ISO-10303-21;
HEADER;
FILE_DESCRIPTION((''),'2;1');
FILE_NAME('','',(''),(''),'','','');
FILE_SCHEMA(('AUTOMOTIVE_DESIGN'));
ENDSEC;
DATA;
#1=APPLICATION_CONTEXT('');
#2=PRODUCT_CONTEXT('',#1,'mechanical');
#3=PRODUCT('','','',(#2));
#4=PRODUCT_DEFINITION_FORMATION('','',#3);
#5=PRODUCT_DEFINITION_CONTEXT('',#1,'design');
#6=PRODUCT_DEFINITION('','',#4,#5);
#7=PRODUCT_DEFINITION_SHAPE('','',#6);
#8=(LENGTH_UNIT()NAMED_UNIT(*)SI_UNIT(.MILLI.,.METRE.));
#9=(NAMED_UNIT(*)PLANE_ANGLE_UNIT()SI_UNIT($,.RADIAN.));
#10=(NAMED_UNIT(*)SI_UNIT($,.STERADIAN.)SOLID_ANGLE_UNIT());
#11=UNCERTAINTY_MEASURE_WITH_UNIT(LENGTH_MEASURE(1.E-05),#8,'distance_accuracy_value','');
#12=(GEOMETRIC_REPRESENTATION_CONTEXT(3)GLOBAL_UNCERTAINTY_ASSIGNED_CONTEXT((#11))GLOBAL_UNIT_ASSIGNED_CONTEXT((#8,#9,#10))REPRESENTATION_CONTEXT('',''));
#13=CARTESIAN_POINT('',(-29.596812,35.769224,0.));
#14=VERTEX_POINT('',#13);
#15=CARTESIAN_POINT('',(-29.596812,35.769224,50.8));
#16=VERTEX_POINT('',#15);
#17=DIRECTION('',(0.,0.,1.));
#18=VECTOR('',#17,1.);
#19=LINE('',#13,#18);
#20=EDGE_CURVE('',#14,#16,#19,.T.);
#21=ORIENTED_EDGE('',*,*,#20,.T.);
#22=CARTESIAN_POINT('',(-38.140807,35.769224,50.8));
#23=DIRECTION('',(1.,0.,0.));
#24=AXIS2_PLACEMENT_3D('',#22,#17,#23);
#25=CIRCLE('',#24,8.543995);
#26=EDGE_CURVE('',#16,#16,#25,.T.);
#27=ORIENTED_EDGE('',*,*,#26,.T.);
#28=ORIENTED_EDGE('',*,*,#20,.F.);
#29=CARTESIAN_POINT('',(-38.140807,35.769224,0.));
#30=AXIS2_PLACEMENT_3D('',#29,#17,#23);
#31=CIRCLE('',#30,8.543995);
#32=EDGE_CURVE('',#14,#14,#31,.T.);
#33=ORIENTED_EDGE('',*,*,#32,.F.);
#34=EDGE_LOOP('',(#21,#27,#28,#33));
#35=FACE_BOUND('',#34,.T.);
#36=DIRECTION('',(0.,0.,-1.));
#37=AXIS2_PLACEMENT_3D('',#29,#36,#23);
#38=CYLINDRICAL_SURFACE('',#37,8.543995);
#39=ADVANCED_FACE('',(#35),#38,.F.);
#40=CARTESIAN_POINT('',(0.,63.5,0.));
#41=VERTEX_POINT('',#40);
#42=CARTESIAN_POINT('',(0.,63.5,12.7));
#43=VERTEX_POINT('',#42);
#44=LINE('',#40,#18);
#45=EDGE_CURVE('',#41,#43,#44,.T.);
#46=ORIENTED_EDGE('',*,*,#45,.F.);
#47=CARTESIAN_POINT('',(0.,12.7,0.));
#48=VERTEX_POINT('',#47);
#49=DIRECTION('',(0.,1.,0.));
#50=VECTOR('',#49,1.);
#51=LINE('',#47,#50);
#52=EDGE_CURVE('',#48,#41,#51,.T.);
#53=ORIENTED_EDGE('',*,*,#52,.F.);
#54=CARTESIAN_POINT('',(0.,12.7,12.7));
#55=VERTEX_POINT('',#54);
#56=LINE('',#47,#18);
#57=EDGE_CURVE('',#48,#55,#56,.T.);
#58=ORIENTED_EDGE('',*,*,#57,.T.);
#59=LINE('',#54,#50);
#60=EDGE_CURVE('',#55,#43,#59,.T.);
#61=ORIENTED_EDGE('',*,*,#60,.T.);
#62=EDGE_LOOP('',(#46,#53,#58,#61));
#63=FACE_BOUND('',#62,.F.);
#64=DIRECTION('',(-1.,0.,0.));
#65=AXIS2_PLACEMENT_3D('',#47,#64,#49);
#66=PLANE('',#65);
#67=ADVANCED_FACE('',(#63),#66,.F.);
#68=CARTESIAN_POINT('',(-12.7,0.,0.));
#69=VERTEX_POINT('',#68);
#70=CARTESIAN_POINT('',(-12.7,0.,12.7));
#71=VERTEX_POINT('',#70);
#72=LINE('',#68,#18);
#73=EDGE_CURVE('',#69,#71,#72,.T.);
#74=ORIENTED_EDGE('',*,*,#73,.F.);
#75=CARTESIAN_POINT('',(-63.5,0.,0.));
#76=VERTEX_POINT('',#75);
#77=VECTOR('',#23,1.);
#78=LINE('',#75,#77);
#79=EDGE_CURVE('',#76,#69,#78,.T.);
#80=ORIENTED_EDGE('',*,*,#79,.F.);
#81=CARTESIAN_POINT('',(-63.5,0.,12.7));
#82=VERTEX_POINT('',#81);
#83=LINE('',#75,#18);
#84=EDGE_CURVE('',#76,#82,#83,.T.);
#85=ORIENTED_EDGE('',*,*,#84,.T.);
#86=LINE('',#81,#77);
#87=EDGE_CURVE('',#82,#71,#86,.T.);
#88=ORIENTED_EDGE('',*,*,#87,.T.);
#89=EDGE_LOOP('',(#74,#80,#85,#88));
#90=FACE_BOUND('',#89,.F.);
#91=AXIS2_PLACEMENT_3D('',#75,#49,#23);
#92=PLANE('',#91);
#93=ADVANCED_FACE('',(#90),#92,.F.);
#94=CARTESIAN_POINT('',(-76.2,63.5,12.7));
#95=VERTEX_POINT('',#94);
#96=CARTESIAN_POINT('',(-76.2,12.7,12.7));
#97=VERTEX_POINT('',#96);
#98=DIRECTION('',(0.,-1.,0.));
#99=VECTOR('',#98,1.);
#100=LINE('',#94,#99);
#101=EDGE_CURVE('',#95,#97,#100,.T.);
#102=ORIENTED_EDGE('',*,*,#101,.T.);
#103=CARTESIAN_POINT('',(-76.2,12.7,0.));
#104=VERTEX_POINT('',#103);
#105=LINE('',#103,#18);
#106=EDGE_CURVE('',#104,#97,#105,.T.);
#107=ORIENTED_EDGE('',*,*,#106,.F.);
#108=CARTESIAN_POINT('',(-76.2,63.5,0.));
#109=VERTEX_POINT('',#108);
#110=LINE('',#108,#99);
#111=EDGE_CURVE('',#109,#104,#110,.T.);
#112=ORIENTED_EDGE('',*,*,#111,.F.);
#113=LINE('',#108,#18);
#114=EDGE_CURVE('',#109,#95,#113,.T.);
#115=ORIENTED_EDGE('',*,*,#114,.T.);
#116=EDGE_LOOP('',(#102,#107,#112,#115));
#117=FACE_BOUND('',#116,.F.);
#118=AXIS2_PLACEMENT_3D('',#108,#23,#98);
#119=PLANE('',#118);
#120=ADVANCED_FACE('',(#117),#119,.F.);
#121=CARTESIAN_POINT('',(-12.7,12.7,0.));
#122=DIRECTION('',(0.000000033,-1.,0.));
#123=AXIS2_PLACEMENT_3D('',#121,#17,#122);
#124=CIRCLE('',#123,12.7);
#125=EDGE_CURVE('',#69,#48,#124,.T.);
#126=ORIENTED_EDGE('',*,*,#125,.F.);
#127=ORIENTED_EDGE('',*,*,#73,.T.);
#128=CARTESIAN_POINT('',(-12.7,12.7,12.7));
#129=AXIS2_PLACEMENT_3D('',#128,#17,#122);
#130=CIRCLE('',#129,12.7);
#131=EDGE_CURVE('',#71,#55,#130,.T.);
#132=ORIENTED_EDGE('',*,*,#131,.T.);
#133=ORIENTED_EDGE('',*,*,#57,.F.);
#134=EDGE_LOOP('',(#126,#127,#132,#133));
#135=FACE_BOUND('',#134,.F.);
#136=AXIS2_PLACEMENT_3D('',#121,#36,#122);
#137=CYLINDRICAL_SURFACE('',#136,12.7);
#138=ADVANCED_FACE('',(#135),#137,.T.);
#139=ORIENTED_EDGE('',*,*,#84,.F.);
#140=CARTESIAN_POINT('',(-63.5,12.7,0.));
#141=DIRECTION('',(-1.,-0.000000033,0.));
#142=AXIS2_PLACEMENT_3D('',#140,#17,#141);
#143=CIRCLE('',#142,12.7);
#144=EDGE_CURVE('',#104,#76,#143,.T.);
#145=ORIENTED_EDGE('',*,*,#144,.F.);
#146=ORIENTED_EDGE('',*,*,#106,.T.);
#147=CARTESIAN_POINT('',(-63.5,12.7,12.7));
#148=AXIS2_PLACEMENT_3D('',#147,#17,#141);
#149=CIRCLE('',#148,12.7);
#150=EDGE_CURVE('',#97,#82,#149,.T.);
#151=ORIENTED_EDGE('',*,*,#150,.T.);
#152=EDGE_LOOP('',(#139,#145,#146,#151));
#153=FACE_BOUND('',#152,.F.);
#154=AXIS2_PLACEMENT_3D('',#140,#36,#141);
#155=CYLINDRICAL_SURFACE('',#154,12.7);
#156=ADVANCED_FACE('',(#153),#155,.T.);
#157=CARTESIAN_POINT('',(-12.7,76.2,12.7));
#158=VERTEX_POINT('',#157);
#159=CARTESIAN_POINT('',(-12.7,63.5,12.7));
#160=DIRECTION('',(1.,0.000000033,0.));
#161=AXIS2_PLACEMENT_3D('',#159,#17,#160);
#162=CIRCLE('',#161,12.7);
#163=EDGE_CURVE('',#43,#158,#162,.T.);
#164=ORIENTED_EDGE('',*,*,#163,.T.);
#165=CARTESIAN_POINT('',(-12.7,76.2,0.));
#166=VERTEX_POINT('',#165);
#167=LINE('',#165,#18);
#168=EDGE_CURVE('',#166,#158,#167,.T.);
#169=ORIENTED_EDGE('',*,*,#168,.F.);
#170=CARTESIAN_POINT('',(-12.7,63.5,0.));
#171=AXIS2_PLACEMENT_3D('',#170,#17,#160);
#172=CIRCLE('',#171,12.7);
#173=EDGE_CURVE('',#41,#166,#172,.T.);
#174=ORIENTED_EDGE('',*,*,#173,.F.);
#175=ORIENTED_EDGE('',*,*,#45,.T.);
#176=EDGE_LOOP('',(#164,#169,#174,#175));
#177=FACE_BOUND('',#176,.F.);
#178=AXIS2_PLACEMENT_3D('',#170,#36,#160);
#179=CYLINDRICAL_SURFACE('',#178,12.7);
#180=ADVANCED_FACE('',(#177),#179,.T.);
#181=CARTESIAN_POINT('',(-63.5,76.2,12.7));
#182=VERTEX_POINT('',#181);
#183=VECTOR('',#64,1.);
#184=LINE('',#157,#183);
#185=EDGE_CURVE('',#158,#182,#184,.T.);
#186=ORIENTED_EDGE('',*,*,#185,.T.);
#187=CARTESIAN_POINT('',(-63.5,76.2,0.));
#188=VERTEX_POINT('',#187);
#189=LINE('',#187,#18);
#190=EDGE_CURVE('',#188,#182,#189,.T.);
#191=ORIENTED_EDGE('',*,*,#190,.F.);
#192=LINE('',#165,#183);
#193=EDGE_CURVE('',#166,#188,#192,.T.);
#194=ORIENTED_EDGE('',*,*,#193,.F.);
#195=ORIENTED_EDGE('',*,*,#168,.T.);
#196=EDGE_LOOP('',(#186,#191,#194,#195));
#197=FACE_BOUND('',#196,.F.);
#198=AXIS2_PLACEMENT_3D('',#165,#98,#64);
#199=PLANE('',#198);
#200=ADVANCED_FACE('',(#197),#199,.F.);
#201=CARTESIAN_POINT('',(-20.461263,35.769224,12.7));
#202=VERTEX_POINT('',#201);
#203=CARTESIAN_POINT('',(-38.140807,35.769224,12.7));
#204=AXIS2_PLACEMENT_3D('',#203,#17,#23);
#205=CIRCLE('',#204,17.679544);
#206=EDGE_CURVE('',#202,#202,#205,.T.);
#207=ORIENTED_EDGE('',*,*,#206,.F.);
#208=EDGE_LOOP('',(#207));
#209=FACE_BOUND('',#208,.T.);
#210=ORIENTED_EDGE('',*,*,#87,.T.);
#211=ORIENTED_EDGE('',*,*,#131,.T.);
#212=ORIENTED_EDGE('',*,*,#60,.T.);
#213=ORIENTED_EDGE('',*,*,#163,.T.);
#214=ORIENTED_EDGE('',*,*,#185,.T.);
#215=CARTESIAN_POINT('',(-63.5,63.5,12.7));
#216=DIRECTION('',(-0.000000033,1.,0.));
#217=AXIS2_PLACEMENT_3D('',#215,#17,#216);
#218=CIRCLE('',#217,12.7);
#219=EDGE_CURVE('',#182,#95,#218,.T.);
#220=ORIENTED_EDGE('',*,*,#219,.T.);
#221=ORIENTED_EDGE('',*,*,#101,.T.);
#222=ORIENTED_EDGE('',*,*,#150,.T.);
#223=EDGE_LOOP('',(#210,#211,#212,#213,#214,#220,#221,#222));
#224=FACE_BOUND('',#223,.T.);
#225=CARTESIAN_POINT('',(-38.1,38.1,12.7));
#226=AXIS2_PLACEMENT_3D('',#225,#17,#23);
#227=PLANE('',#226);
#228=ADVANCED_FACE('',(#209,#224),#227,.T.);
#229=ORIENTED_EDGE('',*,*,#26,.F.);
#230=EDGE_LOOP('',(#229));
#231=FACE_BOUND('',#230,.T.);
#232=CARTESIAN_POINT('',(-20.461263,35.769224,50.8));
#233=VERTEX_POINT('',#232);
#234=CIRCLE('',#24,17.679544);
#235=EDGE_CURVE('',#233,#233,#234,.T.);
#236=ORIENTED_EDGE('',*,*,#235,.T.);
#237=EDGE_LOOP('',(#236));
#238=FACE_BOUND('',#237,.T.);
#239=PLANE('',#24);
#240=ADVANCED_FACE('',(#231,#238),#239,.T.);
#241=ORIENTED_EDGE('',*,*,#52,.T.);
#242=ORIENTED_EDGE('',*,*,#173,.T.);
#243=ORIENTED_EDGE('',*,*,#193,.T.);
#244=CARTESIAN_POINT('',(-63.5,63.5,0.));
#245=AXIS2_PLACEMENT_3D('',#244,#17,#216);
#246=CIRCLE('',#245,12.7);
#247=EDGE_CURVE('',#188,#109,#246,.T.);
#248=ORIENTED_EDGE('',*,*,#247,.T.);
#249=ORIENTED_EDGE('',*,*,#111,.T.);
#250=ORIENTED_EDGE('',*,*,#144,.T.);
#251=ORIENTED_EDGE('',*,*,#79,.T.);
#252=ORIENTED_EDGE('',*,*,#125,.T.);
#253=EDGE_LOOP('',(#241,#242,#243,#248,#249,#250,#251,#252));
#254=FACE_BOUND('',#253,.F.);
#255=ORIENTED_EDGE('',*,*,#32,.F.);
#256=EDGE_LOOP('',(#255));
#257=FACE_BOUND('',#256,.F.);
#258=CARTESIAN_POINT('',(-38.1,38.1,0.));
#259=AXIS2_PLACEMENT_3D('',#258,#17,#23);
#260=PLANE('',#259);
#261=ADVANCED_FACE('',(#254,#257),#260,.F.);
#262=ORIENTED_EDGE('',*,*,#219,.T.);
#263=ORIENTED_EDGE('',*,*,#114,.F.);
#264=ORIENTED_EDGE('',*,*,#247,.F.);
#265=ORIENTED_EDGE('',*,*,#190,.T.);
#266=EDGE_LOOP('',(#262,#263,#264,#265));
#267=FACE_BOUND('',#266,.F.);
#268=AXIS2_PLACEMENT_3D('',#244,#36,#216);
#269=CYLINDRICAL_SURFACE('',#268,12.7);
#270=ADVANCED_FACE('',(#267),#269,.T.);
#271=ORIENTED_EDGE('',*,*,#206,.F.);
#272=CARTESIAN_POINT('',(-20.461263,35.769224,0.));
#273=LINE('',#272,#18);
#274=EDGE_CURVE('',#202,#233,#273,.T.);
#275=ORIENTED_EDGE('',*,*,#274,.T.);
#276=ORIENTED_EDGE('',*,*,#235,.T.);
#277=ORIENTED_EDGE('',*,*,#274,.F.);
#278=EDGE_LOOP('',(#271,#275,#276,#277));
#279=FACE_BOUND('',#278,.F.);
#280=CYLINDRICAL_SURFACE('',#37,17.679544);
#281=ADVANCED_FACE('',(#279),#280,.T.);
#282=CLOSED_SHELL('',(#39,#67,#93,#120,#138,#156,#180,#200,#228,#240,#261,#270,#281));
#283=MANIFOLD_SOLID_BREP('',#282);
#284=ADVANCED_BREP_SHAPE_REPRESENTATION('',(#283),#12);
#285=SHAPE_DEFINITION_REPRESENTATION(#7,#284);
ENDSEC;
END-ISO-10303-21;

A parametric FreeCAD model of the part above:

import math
import FreeCAD as App
import Part
import Sketcher
from FreeCAD import Vector
Q = App.Units.Quantity

doc = App.newDocument("Part")
body = doc.addObject("PartDesign::Body", "Body")

# Sketch on XY plane
sketch1 = doc.addObject("Sketcher::SketchObject", "Sketch")
body.addObject(sketch1)
sketch1.AttachmentSupport = (doc.XY_Plane, [""])
sketch1.MapMode = "FlatFace"
sketch1.addGeometry(Part.LineSegment(Vector(-64, 0, 0), Vector(-13, 0, 0)), False)
sketch1.addGeometry(Part.ArcOfCircle(Part.Circle(Vector(-13, 13, 0), Vector(0, 0, 1), 13), math.radians(-90), math.radians(0)), False)
sketch1.addGeometry(Part.LineSegment(Vector(0, 13, 0), Vector(0, 64, 0)), False)
sketch1.addGeometry(Part.ArcOfCircle(Part.Circle(Vector(-13, 63, 0), Vector(0, 0, 1), 13), math.radians(0), math.radians(90)), False)
sketch1.addGeometry(Part.LineSegment(Vector(-13, 76, 0), Vector(-64, 76, 0)), False)
sketch1.addGeometry(Part.ArcOfCircle(Part.Circle(Vector(-63, 63, 0), Vector(0, 0, 1), 13), math.radians(90), math.radians(180)), False)
sketch1.addGeometry(Part.LineSegment(Vector(-76, 64, 0), Vector(-76, 13, 0)), False)
sketch1.addGeometry(Part.ArcOfCircle(Part.Circle(Vector(-63, 13, 0), Vector(0, 0, 1), 13), math.radians(-180), math.radians(-90)), False)
sketch1.addGeometry(Part.Circle(Vector(-38, 36, 0), Vector(0, 0, 1), 18), False)
sketch1.addConstraint(Sketcher.Constraint("Tangent", 0, 2, 1, 1))
sketch1.addConstraint(Sketcher.Constraint("Tangent", 1, 2, 2, 1))
sketch1.addConstraint(Sketcher.Constraint("Tangent", 2, 2, 3, 1))
sketch1.addConstraint(Sketcher.Constraint("Tangent", 3, 2, 4, 1))
sketch1.addConstraint(Sketcher.Constraint("Tangent", 4, 2, 5, 1))
sketch1.addConstraint(Sketcher.Constraint("Tangent", 5, 2, 6, 1))
sketch1.addConstraint(Sketcher.Constraint("Tangent", 6, 2, 7, 1))
sketch1.addConstraint(Sketcher.Constraint("Tangent", 7, 2, 0, 1))
sketch1.addConstraint(Sketcher.Constraint("Horizontal", 0))
sketch1.addConstraint(Sketcher.Constraint("Vertical", 2))
sketch1.addConstraint(Sketcher.Constraint("Horizontal", 4))
sketch1.addConstraint(Sketcher.Constraint("Vertical", 6))
sketch1.addConstraint(Sketcher.Constraint("Equal", 1, 3))
sketch1.addConstraint(Sketcher.Constraint("Equal", 3, 5))
sketch1.addConstraint(Sketcher.Constraint("Equal", 5, 7))
sketch1.addConstraint(Sketcher.Constraint("PointOnObject", 0, 2, -1))
sketch1.addConstraint(Sketcher.Constraint("PointOnObject", 1, 2, -2))
sketch1.addConstraint(Sketcher.Constraint("Equal", 4, 2))
sketch1.addConstraint(Sketcher.Constraint("Radius", 1, Q("0.5 in")))
sketch1.addConstraint(Sketcher.Constraint("DistanceX", 0, 1, 0, 2, Q("2 in")))
sketch1.addConstraint(Sketcher.Constraint("Diameter", 8, 35.359088))
sketch1.addConstraint(Sketcher.Constraint("DistanceX", 8, 3, -1, 1, 38.140807))
sketch1.addConstraint(Sketcher.Constraint("DistanceY", -1, 1, 8, 3, 35.769224))
pad1 = doc.addObject("PartDesign::Pad", "Pad")
body.addObject(pad1)
pad1.Profile = sketch1
pad1.Length = Q("0.5 in")

# Sketch on XY plane
sketch2 = doc.addObject("Sketcher::SketchObject", "Sketch001")
body.addObject(sketch2)
sketch2.AttachmentSupport = (doc.XY_Plane, [""])
sketch2.MapMode = "FlatFace"
sketch2.addGeometry(Part.Circle(Vector(-38, 36, 0), Vector(0, 0, 1), 18), False)
sketch2.addGeometry(Part.Circle(Vector(-38, 36, 0), Vector(0, 0, 1), 9), False)
sketch2.addConstraint(Sketcher.Constraint("Coincident", 1, 3, 0, 3))
sketch2.addConstraint(Sketcher.Constraint("Diameter", 1, 17.08799))
sketch2.addConstraint(Sketcher.Constraint("Diameter", 0, 35.359088))
sketch2.addConstraint(Sketcher.Constraint("DistanceX", 0, 3, -1, 1, 38.140807))
sketch2.addConstraint(Sketcher.Constraint("DistanceY", -1, 1, 0, 3, 35.769224))
pad2 = doc.addObject("PartDesign::Pad", "Pad001")
body.addObject(pad2)
pad2.Profile = sketch2
pad2.Length = Q("2 in")

doc.recompute()
